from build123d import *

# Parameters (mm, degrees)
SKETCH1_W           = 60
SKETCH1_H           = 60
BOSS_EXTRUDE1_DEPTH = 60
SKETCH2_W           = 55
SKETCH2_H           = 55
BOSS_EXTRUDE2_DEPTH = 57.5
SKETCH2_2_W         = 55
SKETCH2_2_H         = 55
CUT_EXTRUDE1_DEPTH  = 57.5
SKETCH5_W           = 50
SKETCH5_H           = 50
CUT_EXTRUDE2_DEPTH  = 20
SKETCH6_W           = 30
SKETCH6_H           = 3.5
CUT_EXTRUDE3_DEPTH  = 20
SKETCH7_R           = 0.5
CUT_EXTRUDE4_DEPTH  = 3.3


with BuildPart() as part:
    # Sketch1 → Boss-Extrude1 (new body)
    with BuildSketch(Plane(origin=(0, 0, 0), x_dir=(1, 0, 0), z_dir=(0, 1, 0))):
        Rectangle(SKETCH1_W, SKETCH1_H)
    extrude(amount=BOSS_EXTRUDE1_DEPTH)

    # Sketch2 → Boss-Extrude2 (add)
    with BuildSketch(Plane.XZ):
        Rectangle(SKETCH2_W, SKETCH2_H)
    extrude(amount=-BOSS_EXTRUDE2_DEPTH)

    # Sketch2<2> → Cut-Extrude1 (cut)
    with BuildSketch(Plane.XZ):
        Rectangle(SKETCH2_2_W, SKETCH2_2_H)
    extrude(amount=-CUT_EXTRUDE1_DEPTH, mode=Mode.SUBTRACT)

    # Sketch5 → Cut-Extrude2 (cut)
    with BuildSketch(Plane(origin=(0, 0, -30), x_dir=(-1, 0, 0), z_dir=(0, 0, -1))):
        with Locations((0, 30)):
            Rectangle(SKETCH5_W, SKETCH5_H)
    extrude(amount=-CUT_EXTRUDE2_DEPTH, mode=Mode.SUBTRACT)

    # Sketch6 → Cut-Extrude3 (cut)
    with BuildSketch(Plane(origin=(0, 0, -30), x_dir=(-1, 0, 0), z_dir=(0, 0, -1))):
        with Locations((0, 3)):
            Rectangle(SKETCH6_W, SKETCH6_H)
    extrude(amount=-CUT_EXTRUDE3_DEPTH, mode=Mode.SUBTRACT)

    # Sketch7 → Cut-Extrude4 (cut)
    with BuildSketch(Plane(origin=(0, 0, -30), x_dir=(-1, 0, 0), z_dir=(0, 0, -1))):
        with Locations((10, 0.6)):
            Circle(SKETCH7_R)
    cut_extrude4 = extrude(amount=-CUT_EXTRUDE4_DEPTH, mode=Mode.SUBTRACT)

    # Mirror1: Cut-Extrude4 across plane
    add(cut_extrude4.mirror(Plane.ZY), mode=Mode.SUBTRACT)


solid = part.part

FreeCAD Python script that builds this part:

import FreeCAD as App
import Part
import Sketcher
from FreeCAD import Vector

doc = App.newDocument("Part")
params = doc.addObject("Spreadsheet::Sheet", "Params")
for row, (alias, value) in enumerate([
    ("sketch1_width", "60 mm"),
    ("pad1_length", "60 mm"),
    ("sketch2_width", "55 mm"),
    ("pad2_length", "57.5 mm"),
    ("sketch3_width", "55 mm"),
    ("pocket1_length", "57.5 mm"),
    ("sketch4_width", "50 mm"),
    ("pocket2_length", "20 mm"),
    ("sketch5_width", "30 mm"),
    ("sketch5_height", "3.5 mm"),
    ("pocket3_length", "20 mm"),
    ("sketch6_diameter", "1 mm"),
    ("pocket4_length", "3.3 mm"),
], start=1):
    params.set(f"A{row}", alias)
    params.set(f"B{row}", "=" + value)
    params.setAlias(f"B{row}", alias)

body = doc.addObject("PartDesign::Body", "Body")

sketch1 = body.newObject("Sketcher::SketchObject", "Sketch")
sketch1.AttachmentSupport = (doc.getObject("XZ_Plane"), [""])
sketch1.MapMode = "FlatFace"
sketch1.addGeometry([
    Part.LineSegment(Vector(-30, -30, 0), Vector(-30, 30, 0)),
    Part.LineSegment(Vector(-30, 30, 0), Vector(30, 30, 0)),
    Part.LineSegment(Vector(30, 30, 0), Vector(30, -30, 0)),
    Part.LineSegment(Vector(30, -30, 0), Vector(-30, -30, 0)),
], False)
sketch1.addConstraint([
    Sketcher.Constraint("Coincident", 0, 2, 1, 1),
    Sketcher.Constraint("Coincident", 1, 2, 2, 1),
    Sketcher.Constraint("Coincident", 2, 2, 3, 1),
    Sketcher.Constraint("Coincident", 3, 2, 0, 1),
    Sketcher.Constraint("Vertical", 0),
    Sketcher.Constraint("Horizontal", 1),
    Sketcher.Constraint("Vertical", 2),
    Sketcher.Constraint("Horizontal", 3),
    Sketcher.Constraint("Symmetric", 0, 2, 2, 2, -1, 1),
    Sketcher.Constraint("Equal", 3, 0),
    Sketcher.Constraint("DistanceX", 1, 1, 1, 2, 60.0),
])
sketch1.setExpression("Constraints[10]", "Params.sketch1_width")
pad1 = body.newObject("PartDesign::Pad", "Pad")
pad1.Profile = sketch1
pad1.setExpression("Length", "Params.pad1_length")
pad1.Reversed = True

sketch2 = body.newObject("Sketcher::SketchObject", "Sketch001")
sketch2.AttachmentSupport = (doc.getObject("XZ_Plane"), [""])
sketch2.MapMode = "FlatFace"
sketch2.addGeometry([
    Part.LineSegment(Vector(-28, 28, 0), Vector(-28, -28, 0)),
    Part.LineSegment(Vector(-28, -28, 0), Vector(28, -28, 0)),
    Part.LineSegment(Vector(28, -28, 0), Vector(28, 28, 0)),
    Part.LineSegment(Vector(28, 28, 0), Vector(-28, 28, 0)),
], False)
sketch2.addConstraint([
    Sketcher.Constraint("Coincident", 0, 2, 1, 1),
    Sketcher.Constraint("Coincident", 1, 2, 2, 1),
    Sketcher.Constraint("Coincident", 2, 2, 3, 1),
    Sketcher.Constraint("Coincident", 3, 2, 0, 1),
    Sketcher.Constraint("Vertical", 0),
    Sketcher.Constraint("Horizontal", 1),
    Sketcher.Constraint("Vertical", 2),
    Sketcher.Constraint("Horizontal", 3),
    Sketcher.Constraint("Symmetric", 0, 2, 2, 2, -1, 1),
    Sketcher.Constraint("Equal", 3, 0),
    Sketcher.Constraint("DistanceX", 1, 1, 1, 2, 55.0),
])
sketch2.setExpression("Constraints[10]", "Params.sketch2_width")
pad2 = body.newObject("PartDesign::Pad", "Pad001")
pad2.Profile = sketch2
pad2.setExpression("Length", "Params.pad2_length")
pad2.Reversed = True

sketch3 = body.newObject("Sketcher::SketchObject", "Sketch002")
sketch3.AttachmentSupport = (doc.getObject("XZ_Plane"), [""])
sketch3.MapMode = "FlatFace"
sketch3.addGeometry([
    Part.LineSegment(Vector(-28, 28, 0), Vector(-28, -28, 0)),
    Part.LineSegment(Vector(-28, -28, 0), Vector(28, -28, 0)),
    Part.LineSegment(Vector(28, -28, 0), Vector(28, 28, 0)),
    Part.LineSegment(Vector(28, 28, 0), Vector(-28, 28, 0)),
], False)
sketch3.addConstraint([
    Sketcher.Constraint("Coincident", 0, 2, 1, 1),
    Sketcher.Constraint("Coincident", 1, 2, 2, 1),
    Sketcher.Constraint("Coincident", 2, 2, 3, 1),
    Sketcher.Constraint("Coincident", 3, 2, 0, 1),
    Sketcher.Constraint("Vertical", 0),
    Sketcher.Constraint("Horizontal", 1),
    Sketcher.Constraint("Vertical", 2),
    Sketcher.Constraint("Horizontal", 3),
    Sketcher.Constraint("Symmetric", 0, 2, 2, 2, -1, 1),
    Sketcher.Constraint("Equal", 3, 0),
    Sketcher.Constraint("DistanceX", 1, 1, 1, 2, 55.0),
])
sketch3.setExpression("Constraints[10]", "Params.sketch3_width")
pocket1 = body.newObject("PartDesign::Pocket", "Pocket")
pocket1.Profile = sketch3
pocket1.setExpression("Length", "Params.pocket1_length")

sketch4 = body.newObject("Sketcher::SketchObject", "Sketch003")
sketch4.AttachmentSupport = (doc.getObject("XY_Plane"), [""])
sketch4.MapMode = "FlatFace"
sketch4.AttachmentOffset = App.Placement(Vector(0, 0, -30), App.Rotation())
sketch4.addGeometry([
    Part.LineSegment(Vector(25, 55, 0), Vector(25, 5, 0)),
    Part.LineSegment(Vector(25, 5, 0), Vector(-25, 5, 0)),
    Part.LineSegment(Vector(-25, 5, 0), Vector(-25, 55, 0)),
    Part.LineSegment(Vector(-25, 55, 0), Vector(25, 55, 0)),
], False)
sketch4.addConstraint([
    Sketcher.Constraint("Coincident", 0, 2, 1, 1),
    Sketcher.Constraint("Coincident", 1, 2, 2, 1),
    Sketcher.Constraint("Coincident", 2, 2, 3, 1),
    Sketcher.Constraint("Coincident", 3, 2, 0, 1),
    Sketcher.Constraint("Vertical", 0),
    Sketcher.Constraint("Horizontal", 1),
    Sketcher.Constraint("Vertical", 2),
    Sketcher.Constraint("Horizontal", 3),
    Sketcher.Constraint("Equal", 3, 0),
    Sketcher.Constraint("DistanceX", 1, 2, 1, 1, 50.0),
    Sketcher.Constraint("DistanceX", -1, 1, 0, 2, 25.0),
    Sketcher.Constraint("DistanceY", -1, 1, 0, 2, 5.0),
])
sketch4.setExpression("Constraints[9]", "Params.sketch4_width")
pocket2 = body.newObject("PartDesign::Pocket", "Pocket001")
pocket2.Profile = sketch4
pocket2.setExpression("Length", "Params.pocket2_length")
pocket2.Reversed = True

sketch5 = body.newObject("Sketcher::SketchObject", "Sketch004")
sketch5.AttachmentSupport = (doc.getObject("XY_Plane"), [""])
sketch5.MapMode = "FlatFace"
sketch5.AttachmentOffset = App.Placement(Vector(0, 0, -30), App.Rotation())
sketch5.addGeometry([
    Part.LineSegment(Vector(15, 4.8, 0), Vector(15, 1.2, 0)),
    Part.LineSegment(Vector(15, 1.2, 0), Vector(-15, 1.2, 0)),
    Part.LineSegment(Vector(-15, 1.2, 0), Vector(-15, 4.8, 0)),
    Part.LineSegment(Vector(-15, 4.8, 0), Vector(15, 4.8, 0)),
], False)
sketch5.addConstraint([
    Sketcher.Constraint("Coincident", 0, 2, 1, 1),
    Sketcher.Constraint("Coincident", 1, 2, 2, 1),
    Sketcher.Constraint("Coincident", 2, 2, 3, 1),
    Sketcher.Constraint("Coincident", 3, 2, 0, 1),
    Sketcher.Constraint("Vertical", 0),
    Sketcher.Constraint("Horizontal", 1),
    Sketcher.Constraint("Vertical", 2),
    Sketcher.Constraint("Horizontal", 3),
    Sketcher.Constraint("DistanceX", 1, 2, 1, 1, 30.0),
    Sketcher.Constraint("DistanceY", 0, 2, 0, 1, 3.5),
    Sketcher.Constraint("DistanceX", -1, 1, 0, 2, 15.0),
    Sketcher.Constraint("DistanceY", -1, 1, 0, 2, 1.25),
])
sketch5.setExpression("Constraints[8]", "Params.sketch5_width")
sketch5.setExpression("Constraints[9]", "Params.sketch5_height")
pocket3 = body.newObject("PartDesign::Pocket", "Pocket002")
pocket3.Profile = sketch5
pocket3.setExpression("Length", "Params.pocket3_length")
pocket3.Reversed = True

sketch6 = body.newObject("Sketcher::SketchObject", "Sketch005")
sketch6.AttachmentSupport = (doc.getObject("XY_Plane"), [""])
sketch6.MapMode = "FlatFace"
sketch6.AttachmentOffset = App.Placement(Vector(0, 0, -30), App.Rotation())
sketch6.addGeometry(Part.Circle(Vector(-10, 0.6, 0), Vector(0, 0, 1), 0.5), False)
sketch6.addConstraint([
    Sketcher.Constraint("Diameter", 0, 1.0),
    Sketcher.Constraint("DistanceX", 0, 3, -1, 1, 10.0),
    Sketcher.Constraint("DistanceY", -1, 1, 0, 3, 0.6),
])
sketch6.setExpression("Constraints[0]", "Params.sketch6_diameter")
pocket4 = body.newObject("PartDesign::Pocket", "Pocket003")
pocket4.Profile = sketch6
pocket4.setExpression("Length", "Params.pocket4_length")
pocket4.Reversed = True
doc.recompute()

mirrored = body.newObject("PartDesign::Mirrored", "Mirrored")
mirrored.Originals = [pocket4]
mirrored.MirrorPlane = (doc.getObject("YZ_Plane"), [""])
body.Tip = mirrored

doc.recompute()
